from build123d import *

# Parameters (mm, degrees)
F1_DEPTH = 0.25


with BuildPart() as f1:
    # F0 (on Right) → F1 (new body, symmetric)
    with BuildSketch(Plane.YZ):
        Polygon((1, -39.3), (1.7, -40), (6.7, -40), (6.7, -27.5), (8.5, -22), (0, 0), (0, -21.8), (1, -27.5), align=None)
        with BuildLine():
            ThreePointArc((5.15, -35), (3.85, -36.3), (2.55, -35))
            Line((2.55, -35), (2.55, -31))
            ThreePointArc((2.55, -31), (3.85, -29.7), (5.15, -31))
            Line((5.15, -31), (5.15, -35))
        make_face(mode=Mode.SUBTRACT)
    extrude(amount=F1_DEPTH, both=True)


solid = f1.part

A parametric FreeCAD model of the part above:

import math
import FreeCAD as App
import Part
import Sketcher

V = App.Vector
Q = App.Units.Quantity


def add_polygon(sketch, points):
    """Adds a closed chain of lines whose ends are joined by coincident constraints."""
    first, n = sketch.GeometryCount, len(points)
    for a, b in zip(points, points[1:] + points[:1]):
        sketch.addGeometry(Part.LineSegment(App.Vector(*a, 0), App.Vector(*b, 0)), False)
    for i in range(n):
        sketch.addConstraint(Sketcher.Constraint("Coincident", first + i, 2, first + (i + 1) % n, 1))

doc = App.newDocument("Part")
body = doc.addObject("PartDesign::Body", "Body")

# Sketch on YZ plane
sketch1 = body.newObject("Sketcher::SketchObject", "Sketch")
sketch1.AttachmentSupport = (doc.getObject("YZ_Plane"), [""])
sketch1.MapMode = "FlatFace"
add_polygon(sketch1, [(1, -39.3), (1.7, -40), (6.7, -40), (6.7, -27.5), (8.5, -22), (0, 0), (0, -21.8), (1, -27.5)])  # lines 0-7
sketch1.addGeometry(Part.LineSegment(V(5.2, -31, 0), V(5.2, -35, 0)), False)  # 8
sketch1.addGeometry(Part.ArcOfCircle(Part.Circle(V(3.9, -35, 0), V(0, 0, 1), 1.3), math.radians(180), math.radians(360)), False)  # 9
sketch1.addGeometry(Part.LineSegment(V(2.5, -35, 0), V(2.5, -31, 0)), False)  # 10
sketch1.addGeometry(Part.ArcOfCircle(Part.Circle(V(3.9, -31, 0), V(0, 0, 1), 1.3), math.radians(0), math.radians(180)), False)  # 11
sketch1.addConstraint([
    Sketcher.Constraint("Tangent", 8, 2, 9, 2),
    Sketcher.Constraint("Tangent", 9, 1, 10, 1),
    Sketcher.Constraint("Tangent", 10, 2, 11, 2),
    Sketcher.Constraint("Tangent", 11, 1, 8, 1),
    Sketcher.Constraint("Horizontal", 1),
    Sketcher.Constraint("Vertical", 2),
    Sketcher.Constraint("Vertical", 5),
    Sketcher.Constraint("Vertical", 7),
    Sketcher.Constraint("Vertical", 8),
    Sketcher.Constraint("Vertical", 10),
    Sketcher.Constraint("Coincident", 4, 2, -1, 1),
    Sketcher.Constraint("Horizontal", 2, 2, 6, 2),
    Sketcher.Constraint("Equal", 3, 6),
    Sketcher.Constraint("Radius", 9, Q("1.3 mm")),
    Sketcher.Constraint("DistanceX", 1, 1, 1, 2, Q("5 mm")),
    Sketcher.Constraint("DistanceY", 8, 2, 8, 1, Q("4 mm")),
    Sketcher.Constraint("Angle", 0, Q("-45 deg")),
    Sketcher.Constraint("DistanceY", 2, 1, 2, 2, Q("12.5 mm")),
    Sketcher.Constraint("DistanceY", 5, 2, 5, 1, Q("21.8 mm")),
    Sketcher.Constraint("DistanceY", 7, 2, 7, 1, Q("11.8 mm")),
    Sketcher.Constraint("DistanceY", 9, 3, -1, 1, Q("35 mm")),
    Sketcher.Constraint("DistanceY", 0, 2, -1, 1, Q("40 mm")),
    Sketcher.Constraint("DistanceY", 3, 2, -1, 1, Q("22 mm")),
    Sketcher.Constraint("DistanceX", -1, 1, 6, 2, Q("1 mm")),
    Sketcher.Constraint("DistanceX", -1, 1, 9, 3, Q("3.85 mm")),
])
pad1 = body.newObject("PartDesign::Pad", "Pad")
pad1.Profile = sketch1
pad1.Length = 0.5
pad1.Midplane = True

doc.recompute()
